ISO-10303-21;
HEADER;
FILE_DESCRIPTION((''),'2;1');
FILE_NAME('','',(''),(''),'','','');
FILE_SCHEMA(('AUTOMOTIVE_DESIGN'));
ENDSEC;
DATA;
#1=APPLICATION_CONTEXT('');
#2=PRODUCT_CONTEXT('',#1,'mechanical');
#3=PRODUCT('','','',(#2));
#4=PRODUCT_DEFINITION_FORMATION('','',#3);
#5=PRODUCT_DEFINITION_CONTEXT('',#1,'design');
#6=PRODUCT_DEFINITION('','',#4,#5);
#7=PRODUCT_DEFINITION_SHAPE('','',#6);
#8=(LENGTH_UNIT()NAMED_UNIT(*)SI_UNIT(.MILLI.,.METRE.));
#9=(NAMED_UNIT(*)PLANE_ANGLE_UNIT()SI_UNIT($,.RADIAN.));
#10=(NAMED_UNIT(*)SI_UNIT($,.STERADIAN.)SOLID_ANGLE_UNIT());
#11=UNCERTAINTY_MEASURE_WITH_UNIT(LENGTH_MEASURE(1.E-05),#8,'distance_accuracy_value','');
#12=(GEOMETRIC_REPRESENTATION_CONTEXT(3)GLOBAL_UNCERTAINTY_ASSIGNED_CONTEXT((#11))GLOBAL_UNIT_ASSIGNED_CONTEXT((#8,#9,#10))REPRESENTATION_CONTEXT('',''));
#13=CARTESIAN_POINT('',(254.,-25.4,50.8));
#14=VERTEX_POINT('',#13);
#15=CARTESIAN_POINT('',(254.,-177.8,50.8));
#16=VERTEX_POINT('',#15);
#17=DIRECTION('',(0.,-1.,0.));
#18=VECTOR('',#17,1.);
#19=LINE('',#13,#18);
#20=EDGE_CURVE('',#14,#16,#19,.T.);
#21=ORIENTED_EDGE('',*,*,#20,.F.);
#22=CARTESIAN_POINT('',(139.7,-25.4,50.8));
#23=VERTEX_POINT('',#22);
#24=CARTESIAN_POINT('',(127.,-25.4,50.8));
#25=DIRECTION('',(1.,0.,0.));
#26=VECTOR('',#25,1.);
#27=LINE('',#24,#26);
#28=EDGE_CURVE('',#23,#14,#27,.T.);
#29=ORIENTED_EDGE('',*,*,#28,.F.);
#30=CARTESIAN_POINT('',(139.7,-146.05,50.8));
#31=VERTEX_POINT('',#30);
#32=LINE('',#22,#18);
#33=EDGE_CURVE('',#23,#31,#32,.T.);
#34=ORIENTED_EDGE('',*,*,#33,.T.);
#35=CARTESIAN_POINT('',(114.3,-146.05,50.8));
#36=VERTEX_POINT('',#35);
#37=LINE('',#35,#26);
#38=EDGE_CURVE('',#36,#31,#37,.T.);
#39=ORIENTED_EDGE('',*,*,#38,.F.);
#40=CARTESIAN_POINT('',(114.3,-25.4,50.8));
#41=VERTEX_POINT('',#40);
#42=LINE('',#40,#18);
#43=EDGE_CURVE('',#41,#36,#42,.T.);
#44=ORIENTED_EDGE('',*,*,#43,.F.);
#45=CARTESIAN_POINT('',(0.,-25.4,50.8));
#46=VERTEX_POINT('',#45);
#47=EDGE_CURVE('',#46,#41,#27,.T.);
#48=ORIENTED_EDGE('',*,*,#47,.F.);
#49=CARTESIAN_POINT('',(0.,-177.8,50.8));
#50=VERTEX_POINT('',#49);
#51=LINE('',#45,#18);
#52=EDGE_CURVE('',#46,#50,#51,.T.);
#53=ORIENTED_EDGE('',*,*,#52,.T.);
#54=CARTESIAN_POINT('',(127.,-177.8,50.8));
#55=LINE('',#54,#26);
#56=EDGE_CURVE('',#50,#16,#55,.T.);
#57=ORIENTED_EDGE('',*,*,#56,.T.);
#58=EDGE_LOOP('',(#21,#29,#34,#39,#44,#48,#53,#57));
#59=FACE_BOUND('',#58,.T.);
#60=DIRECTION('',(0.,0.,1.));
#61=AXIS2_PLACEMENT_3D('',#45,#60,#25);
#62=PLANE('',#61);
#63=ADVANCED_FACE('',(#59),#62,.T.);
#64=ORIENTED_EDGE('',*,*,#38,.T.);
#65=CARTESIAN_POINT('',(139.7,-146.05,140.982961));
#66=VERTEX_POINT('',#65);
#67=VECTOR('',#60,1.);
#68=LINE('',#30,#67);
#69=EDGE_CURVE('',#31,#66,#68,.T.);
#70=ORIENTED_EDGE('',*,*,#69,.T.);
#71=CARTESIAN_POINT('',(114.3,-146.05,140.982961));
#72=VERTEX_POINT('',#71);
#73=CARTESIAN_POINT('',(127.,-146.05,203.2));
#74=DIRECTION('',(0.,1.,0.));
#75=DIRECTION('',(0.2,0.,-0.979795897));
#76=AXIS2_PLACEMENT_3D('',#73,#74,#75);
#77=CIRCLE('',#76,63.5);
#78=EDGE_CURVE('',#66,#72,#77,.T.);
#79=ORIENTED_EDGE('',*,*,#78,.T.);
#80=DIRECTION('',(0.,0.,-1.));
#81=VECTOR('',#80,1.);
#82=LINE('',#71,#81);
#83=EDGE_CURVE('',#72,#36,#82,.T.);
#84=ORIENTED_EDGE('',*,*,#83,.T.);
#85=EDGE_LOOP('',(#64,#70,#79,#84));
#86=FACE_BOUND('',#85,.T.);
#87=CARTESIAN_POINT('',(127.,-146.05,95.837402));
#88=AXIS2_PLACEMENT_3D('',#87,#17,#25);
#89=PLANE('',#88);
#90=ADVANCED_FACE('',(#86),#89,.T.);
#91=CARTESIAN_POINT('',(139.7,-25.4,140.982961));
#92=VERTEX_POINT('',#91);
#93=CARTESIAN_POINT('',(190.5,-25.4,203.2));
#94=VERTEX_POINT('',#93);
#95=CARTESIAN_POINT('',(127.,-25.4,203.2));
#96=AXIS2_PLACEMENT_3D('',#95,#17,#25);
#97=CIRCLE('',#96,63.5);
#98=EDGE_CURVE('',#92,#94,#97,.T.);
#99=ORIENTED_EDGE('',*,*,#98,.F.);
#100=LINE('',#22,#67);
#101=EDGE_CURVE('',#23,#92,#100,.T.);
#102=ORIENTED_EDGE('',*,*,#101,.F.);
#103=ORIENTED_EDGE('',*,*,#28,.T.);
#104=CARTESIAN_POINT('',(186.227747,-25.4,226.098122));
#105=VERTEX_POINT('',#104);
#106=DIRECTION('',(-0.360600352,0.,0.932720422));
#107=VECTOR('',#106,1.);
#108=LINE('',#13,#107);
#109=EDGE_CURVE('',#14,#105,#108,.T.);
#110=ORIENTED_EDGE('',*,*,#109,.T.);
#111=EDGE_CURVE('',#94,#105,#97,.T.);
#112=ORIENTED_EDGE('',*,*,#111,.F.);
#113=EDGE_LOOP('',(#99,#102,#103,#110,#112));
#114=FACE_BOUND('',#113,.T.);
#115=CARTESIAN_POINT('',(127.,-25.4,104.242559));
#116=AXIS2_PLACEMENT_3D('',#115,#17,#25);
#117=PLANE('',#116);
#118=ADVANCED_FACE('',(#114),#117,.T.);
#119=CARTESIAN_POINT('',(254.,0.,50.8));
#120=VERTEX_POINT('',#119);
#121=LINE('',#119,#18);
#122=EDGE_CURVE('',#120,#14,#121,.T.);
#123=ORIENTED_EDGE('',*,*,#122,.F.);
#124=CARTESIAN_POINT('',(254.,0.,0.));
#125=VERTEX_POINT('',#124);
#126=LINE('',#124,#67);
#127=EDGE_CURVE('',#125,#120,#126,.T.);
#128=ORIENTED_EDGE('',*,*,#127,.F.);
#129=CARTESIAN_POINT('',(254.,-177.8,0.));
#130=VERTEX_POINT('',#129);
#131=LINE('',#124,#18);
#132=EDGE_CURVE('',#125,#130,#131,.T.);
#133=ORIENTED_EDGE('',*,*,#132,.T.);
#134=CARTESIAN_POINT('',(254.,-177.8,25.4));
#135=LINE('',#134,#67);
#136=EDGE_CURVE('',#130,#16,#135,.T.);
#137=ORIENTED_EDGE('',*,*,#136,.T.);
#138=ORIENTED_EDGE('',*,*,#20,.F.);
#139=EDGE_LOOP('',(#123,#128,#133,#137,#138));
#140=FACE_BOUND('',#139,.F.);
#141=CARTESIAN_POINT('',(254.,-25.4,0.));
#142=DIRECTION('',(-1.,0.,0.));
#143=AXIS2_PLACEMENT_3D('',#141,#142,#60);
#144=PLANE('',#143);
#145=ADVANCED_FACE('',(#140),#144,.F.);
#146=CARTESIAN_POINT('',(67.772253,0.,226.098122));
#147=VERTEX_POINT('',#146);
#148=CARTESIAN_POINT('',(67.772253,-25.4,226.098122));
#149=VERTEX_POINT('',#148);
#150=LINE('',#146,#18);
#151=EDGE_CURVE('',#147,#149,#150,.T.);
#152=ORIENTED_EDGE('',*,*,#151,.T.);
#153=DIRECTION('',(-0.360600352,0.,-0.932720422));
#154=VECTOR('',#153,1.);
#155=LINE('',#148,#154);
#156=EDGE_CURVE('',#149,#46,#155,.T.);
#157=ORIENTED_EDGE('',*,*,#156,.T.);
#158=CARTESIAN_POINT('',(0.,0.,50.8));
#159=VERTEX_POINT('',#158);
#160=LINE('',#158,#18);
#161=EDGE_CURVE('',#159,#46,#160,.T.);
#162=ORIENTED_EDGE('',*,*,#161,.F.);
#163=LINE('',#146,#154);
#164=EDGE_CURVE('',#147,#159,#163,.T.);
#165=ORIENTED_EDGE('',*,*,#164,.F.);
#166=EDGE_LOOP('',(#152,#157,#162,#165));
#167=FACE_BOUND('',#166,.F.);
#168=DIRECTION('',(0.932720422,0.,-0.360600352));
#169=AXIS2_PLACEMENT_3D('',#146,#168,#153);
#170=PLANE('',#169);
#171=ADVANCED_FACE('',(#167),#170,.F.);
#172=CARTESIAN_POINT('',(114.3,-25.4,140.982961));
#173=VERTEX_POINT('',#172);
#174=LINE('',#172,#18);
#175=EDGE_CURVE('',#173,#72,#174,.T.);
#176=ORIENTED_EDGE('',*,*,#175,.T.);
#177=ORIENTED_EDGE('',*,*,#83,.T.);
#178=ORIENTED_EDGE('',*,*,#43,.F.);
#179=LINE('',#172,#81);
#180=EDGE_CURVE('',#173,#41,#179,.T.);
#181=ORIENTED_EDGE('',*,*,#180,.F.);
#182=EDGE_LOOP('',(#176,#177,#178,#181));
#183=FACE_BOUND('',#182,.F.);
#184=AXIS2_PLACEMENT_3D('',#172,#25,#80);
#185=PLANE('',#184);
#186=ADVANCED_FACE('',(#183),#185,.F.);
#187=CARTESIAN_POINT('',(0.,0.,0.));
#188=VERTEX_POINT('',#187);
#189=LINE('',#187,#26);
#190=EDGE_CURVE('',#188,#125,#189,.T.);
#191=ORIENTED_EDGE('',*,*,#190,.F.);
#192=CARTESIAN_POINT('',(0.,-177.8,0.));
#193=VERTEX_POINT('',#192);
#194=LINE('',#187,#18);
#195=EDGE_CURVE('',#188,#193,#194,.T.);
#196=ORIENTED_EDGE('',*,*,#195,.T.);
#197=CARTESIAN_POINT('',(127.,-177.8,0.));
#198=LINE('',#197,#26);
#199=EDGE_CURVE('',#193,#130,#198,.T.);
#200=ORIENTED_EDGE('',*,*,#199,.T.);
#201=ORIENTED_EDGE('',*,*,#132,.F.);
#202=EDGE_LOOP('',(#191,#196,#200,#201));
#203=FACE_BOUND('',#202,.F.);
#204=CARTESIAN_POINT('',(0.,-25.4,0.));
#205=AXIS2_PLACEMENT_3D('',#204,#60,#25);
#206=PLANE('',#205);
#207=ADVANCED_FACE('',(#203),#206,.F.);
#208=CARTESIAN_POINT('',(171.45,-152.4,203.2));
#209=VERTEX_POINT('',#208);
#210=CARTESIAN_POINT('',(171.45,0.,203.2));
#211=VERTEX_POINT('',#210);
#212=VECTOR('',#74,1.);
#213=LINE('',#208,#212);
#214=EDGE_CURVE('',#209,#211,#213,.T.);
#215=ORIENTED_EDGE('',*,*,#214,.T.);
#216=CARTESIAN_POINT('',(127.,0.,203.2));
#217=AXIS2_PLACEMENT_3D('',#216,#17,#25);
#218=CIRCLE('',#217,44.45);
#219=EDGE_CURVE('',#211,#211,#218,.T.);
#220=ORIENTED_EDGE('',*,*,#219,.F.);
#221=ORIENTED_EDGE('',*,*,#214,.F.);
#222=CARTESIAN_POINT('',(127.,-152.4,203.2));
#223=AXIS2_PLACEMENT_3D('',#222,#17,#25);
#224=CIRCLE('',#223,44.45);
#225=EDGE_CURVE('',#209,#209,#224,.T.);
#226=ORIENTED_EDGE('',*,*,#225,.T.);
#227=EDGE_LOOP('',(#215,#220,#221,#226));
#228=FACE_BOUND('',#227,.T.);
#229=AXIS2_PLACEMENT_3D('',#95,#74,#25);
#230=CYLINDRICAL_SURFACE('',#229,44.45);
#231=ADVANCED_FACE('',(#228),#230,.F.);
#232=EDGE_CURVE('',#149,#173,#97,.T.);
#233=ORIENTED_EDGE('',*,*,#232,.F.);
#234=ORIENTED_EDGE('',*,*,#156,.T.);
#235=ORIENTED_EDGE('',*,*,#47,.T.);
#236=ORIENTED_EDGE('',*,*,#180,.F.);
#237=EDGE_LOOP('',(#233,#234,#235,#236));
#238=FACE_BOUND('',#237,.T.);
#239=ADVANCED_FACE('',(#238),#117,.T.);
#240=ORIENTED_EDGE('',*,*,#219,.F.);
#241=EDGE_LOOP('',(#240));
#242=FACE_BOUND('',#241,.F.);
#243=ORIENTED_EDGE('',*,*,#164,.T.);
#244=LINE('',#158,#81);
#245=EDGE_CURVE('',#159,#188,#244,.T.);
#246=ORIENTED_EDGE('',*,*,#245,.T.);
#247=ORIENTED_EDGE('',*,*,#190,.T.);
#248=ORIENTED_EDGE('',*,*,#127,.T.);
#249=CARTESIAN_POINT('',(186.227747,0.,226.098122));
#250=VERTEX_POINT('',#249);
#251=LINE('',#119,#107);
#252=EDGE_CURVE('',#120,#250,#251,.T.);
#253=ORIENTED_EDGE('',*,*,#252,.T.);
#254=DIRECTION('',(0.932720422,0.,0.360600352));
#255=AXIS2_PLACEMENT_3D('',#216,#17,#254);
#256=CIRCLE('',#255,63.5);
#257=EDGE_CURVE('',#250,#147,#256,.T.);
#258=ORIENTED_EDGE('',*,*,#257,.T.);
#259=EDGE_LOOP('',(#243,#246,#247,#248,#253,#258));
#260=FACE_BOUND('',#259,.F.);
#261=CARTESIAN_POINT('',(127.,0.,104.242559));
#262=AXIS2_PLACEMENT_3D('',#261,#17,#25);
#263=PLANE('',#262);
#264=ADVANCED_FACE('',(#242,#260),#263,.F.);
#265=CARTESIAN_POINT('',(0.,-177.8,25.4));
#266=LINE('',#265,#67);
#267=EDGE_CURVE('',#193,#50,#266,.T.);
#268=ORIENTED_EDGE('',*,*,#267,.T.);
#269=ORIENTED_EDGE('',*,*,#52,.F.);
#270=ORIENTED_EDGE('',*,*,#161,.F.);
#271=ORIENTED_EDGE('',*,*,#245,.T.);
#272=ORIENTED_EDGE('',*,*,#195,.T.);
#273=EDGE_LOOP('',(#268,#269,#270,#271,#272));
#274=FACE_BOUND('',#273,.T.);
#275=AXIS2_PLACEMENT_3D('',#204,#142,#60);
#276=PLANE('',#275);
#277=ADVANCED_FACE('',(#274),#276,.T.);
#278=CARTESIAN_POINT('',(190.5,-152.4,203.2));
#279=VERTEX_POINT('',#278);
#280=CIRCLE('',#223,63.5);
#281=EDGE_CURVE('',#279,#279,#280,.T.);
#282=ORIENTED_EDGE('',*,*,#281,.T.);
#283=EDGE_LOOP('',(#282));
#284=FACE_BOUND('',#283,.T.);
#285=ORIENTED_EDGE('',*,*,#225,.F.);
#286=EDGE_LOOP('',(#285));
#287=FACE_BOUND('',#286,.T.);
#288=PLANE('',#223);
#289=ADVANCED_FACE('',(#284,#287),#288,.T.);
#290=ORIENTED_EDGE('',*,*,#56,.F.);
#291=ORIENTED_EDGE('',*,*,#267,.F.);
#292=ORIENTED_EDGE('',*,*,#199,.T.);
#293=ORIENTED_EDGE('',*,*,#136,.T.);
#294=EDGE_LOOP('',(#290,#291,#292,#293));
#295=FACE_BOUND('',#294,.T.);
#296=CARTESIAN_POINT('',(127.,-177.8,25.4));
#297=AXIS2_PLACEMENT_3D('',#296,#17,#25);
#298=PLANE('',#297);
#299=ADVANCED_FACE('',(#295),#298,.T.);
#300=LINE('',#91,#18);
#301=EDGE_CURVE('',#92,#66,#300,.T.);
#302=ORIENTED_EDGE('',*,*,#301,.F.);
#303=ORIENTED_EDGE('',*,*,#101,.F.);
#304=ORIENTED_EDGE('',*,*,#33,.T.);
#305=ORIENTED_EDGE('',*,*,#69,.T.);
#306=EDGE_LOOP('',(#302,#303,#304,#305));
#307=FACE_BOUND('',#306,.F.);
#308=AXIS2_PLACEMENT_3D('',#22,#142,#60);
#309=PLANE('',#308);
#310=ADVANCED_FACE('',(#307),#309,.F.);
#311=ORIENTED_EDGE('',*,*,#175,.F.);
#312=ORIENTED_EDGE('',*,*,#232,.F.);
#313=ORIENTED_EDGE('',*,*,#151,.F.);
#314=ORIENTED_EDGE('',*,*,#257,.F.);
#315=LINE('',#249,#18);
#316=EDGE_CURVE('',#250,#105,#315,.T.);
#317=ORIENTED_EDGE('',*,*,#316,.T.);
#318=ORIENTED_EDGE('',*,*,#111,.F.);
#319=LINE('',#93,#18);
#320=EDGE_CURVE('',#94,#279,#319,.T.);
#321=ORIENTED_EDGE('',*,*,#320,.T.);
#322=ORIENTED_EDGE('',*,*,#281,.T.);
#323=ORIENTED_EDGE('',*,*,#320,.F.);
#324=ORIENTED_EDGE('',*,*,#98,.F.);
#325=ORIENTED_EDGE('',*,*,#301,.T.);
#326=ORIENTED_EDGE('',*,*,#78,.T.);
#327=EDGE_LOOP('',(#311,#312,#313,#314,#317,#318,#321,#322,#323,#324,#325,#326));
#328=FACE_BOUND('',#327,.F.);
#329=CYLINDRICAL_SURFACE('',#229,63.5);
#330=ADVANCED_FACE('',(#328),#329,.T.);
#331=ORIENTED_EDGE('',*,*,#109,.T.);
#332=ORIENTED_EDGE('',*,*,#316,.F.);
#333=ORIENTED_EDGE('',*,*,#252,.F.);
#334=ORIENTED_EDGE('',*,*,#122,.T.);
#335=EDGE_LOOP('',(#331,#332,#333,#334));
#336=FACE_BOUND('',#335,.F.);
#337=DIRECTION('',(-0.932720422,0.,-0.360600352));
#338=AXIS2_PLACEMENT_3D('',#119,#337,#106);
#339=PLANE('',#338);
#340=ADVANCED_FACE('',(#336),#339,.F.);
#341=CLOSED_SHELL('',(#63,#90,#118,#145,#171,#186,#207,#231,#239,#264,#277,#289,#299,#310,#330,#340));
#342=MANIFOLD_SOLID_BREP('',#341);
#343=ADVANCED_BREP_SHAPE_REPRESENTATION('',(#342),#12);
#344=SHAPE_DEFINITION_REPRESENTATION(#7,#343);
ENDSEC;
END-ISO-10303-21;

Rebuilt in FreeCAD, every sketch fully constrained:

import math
import FreeCAD as App
import Part
import Sketcher

V = App.Vector
Q = App.Units.Quantity


def add_polygon(sketch, points):
    """Adds a closed chain of lines whose ends are joined by coincident constraints."""
    first, n = sketch.GeometryCount, len(points)
    for a, b in zip(points, points[1:] + points[:1]):
        sketch.addGeometry(Part.LineSegment(App.Vector(*a, 0), App.Vector(*b, 0)), False)
    for i in range(n):
        sketch.addConstraint(Sketcher.Constraint("Coincident", first + i, 2, first + (i + 1) % n, 1))

doc = App.newDocument("Part")
params = doc.addObject("Spreadsheet::Sheet", "Params")
for row, (alias, value) in enumerate([
    ("sketch1_diameter", "3.5 in"),
    ("sketch1_radius", "2.5 in"),
    ("sketch1_width", "10 in"),
    ("sketch1_height", "2 in"),
    ("pad1_length", "1 in"),
    ("sketch2_diameter", "5 in"),
    ("sketch2_diameter2", "3.5 in"),
    ("pad2_length", "5 in"),
    ("sketch3_width", "10 in"),
    ("sketch3_height", "2 in"),
    ("pad3_length", "6 in"),
    ("sketch4_radius", "2.5 in"),
    ("sketch4_width", "1 in"),
    ("pad4_length", "4.75 in"),
    ("sketch5_diameter", "3.5 in"),
], start=1):
    params.set(f"A{row}", alias)
    params.set(f"B{row}", "=" + value)
    params.setAlias(f"B{row}", alias)

body = doc.addObject("PartDesign::Body", "Body")

# Sketch on XZ plane
sketch1 = body.newObject("Sketcher::SketchObject", "Sketch")
sketch1.AttachmentSupport = (doc.getObject("XZ_Plane"), [""])
sketch1.MapMode = "FlatFace"
sketch1.addGeometry(Part.LineSegment(V(0, 51, 0), V(0, 0, 0)), False)
sketch1.addGeometry(Part.LineSegment(V(0, 0, 0), V(254, 0, 0)), False)
sketch1.addGeometry(Part.LineSegment(V(254, 0, 0), V(254, 51, 0)), False)
sketch1.addGeometry(Part.LineSegment(V(254, 51, 0), V(186, 226, 0)), False)
sketch1.addGeometry(Part.ArcOfCircle(Part.Circle(V(127, 203, 0), V(0, 0, 1), 64), math.radians(21), math.radians(159)), False)
sketch1.addGeometry(Part.LineSegment(V(68, 226, 0), V(0, 51, 0)), False)
sketch1.addGeometry(Part.Circle(V(127, 203, 0), V(0, 0, 1), 44), False)
sketch1.addConstraint(Sketcher.Constraint("Coincident", 0, 2, 1, 1))
sketch1.addConstraint(Sketcher.Constraint("Coincident", 1, 2, 2, 1))
sketch1.addConstraint(Sketcher.Constraint("Coincident", 2, 2, 3, 1))
sketch1.addConstraint(Sketcher.Constraint("Tangent", 3, 2, 4, 1))
sketch1.addConstraint(Sketcher.Constraint("Tangent", 4, 2, 5, 1))
sketch1.addConstraint(Sketcher.Constraint("Coincident", 5, 2, 0, 1))
sketch1.addConstraint(Sketcher.Constraint("Vertical", 0))
sketch1.addConstraint(Sketcher.Constraint("Horizontal", 1))
sketch1.addConstraint(Sketcher.Constraint("Vertical", 2))
sketch1.addConstraint(Sketcher.Constraint("Coincident", 0, 2, -1, 1))
sketch1.addConstraint(Sketcher.Constraint("Coincident", 6, 3, 4, 3))
sketch1.addConstraint(Sketcher.Constraint("Horizontal", 3, 2, 4, 2))
sketch1.addConstraint(Sketcher.Constraint("Horizontal", 2, 2, 5, 2))
sketch1.addConstraint(Sketcher.Constraint("Diameter", 6, Q("3.5 in")))
sketch1.addConstraint(Sketcher.Constraint("Radius", 4, Q("2.5 in")))
sketch1.addConstraint(Sketcher.Constraint("DistanceX", 1, 1, 1, 2, Q("10 in")))
sketch1.addConstraint(Sketcher.Constraint("DistanceY", 0, 2, 0, 1, Q("2 in")))
sketch1.addConstraint(Sketcher.Constraint("DistanceY", -1, 1, 4, 3, Q("8 in")))
sketch1.setExpression("Constraints[13]", "Params.sketch1_diameter")
sketch1.setExpression("Constraints[14]", "Params.sketch1_radius")
sketch1.setExpression("Constraints[15]", "Params.sketch1_width")
sketch1.setExpression("Constraints[16]", "Params.sketch1_height")
pad1 = body.newObject("PartDesign::Pad", "Pad")
pad1.Profile = sketch1
pad1.setExpression("Length", "Params.pad1_length")

# Sketch on XZ plane
sketch2 = body.newObject("Sketcher::SketchObject", "Sketch001")
sketch2.AttachmentSupport = (doc.getObject("XZ_Plane"), [""])
sketch2.MapMode = "FlatFace"
sketch2.AttachmentOffset = App.Placement(V(0, 0, 1 * 25.4), App.Rotation())
sketch2.addGeometry(Part.Circle(V(127, 203, 0), V(0, 0, 1), 64), False)
sketch2.addGeometry(Part.Circle(V(127, 203, 0), V(0, 0, 1), 44), False)
sketch2.addConstraint(Sketcher.Constraint("Coincident", 1, 3, 0, 3))
sketch2.addConstraint(Sketcher.Constraint("Diameter", 0, Q("5 in")))
sketch2.addConstraint(Sketcher.Constraint("Diameter", 1, Q("3.5 in")))
sketch2.addConstraint(Sketcher.Constraint("DistanceX", -1, 1, 0, 3, Q("5 in")))
sketch2.addConstraint(Sketcher.Constraint("DistanceY", -1, 1, 0, 3, Q("8 in")))
sketch2.setExpression("Constraints[1]", "Params.sketch2_diameter")
sketch2.setExpression("Constraints[2]", "Params.sketch2_diameter2")
pad2 = body.newObject("PartDesign::Pad", "Pad001")
pad2.Profile = sketch2
pad2.setExpression("Length", "Params.pad2_length")

# Sketch on XZ plane
sketch3 = body.newObject("Sketcher::SketchObject", "Sketch002")
sketch3.AttachmentSupport = (doc.getObject("XZ_Plane"), [""])
sketch3.MapMode = "FlatFace"
sketch3.AttachmentOffset = App.Placement(V(0, 0, 1 * 25.4), App.Rotation())
add_polygon(sketch3, [(0, 51), (0, 0), (254, 0), (254, 51)])  # lines 0-3
sketch3.addConstraint(Sketcher.Constraint("Vertical", 0))
sketch3.addConstraint(Sketcher.Constraint("Horizontal", 1))
sketch3.addConstraint(Sketcher.Constraint("Vertical", 2))
sketch3.addConstraint(Sketcher.Constraint("Horizontal", 3))
sketch3.addConstraint(Sketcher.Constraint("Coincident", 0, 2, -1, 1))
sketch3.addConstraint(Sketcher.Constraint("DistanceX", 1, 1, 1, 2, Q("10 in")))
sketch3.addConstraint(Sketcher.Constraint("DistanceY", 0, 2, 0, 1, Q("2 in")))
sketch3.setExpression("Constraints[9]", "Params.sketch3_width")
sketch3.setExpression("Constraints[10]", "Params.sketch3_height")
pad3 = body.newObject("PartDesign::Pad", "Pad002")
pad3.Profile = sketch3
pad3.setExpression("Length", "Params.pad3_length")

# Sketch on XZ plane
sketch4 = body.newObject("Sketcher::SketchObject", "Sketch003")
sketch4.AttachmentSupport = (doc.getObject("XZ_Plane"), [""])
sketch4.MapMode = "FlatFace"
sketch4.AttachmentOffset = App.Placement(V(0, 0, 1 * 25.4), App.Rotation())
sketch4.addGeometry(Part.ArcOfCircle(Part.Circle(V(127, 203, 0), V(0, 0, 1), 64), math.radians(-102), math.radians(-78)), False)
sketch4.addGeometry(Part.LineSegment(V(114, 141, 0), V(114, 51, 0)), False)
sketch4.addGeometry(Part.LineSegment(V(114, 51, 0), V(140, 51, 0)), False)
sketch4.addGeometry(Part.LineSegment(V(140, 51, 0), V(140, 141, 0)), False)
sketch4.addConstraint(Sketcher.Constraint("Coincident", 0, 1, 1, 1))
sketch4.addConstraint(Sketcher.Constraint("Coincident", 1, 2, 2, 1))
sketch4.addConstraint(Sketcher.Constraint("Coincident", 2, 2, 3, 1))
sketch4.addConstraint(Sketcher.Constraint("Coincident", 3, 2, 0, 2))
sketch4.addConstraint(Sketcher.Constraint("Vertical", 1))
sketch4.addConstraint(Sketcher.Constraint("Horizontal", 2))
sketch4.addConstraint(Sketcher.Constraint("Vertical", 3))
sketch4.addConstraint(Sketcher.Constraint("Horizontal", 0, 1, 3, 2))
sketch4.addConstraint(Sketcher.Constraint("Radius", 0, Q("2.5 in")))
sketch4.addConstraint(Sketcher.Constraint("DistanceX", 2, 1, 2, 2, Q("1 in")))
sketch4.addConstraint(Sketcher.Constraint("DistanceX", -1, 1, 0, 3, Q("5 in")))
sketch4.addConstraint(Sketcher.Constraint("DistanceY", -1, 1, 0, 3, Q("8 in")))
sketch4.addConstraint(Sketcher.Constraint("DistanceY", -1, 1, 1, 2, Q("2 in")))
sketch4.setExpression("Constraints[8]", "Params.sketch4_radius")
sketch4.setExpression("Constraints[9]", "Params.sketch4_width")
pad4 = body.newObject("PartDesign::Pad", "Pad003")
pad4.Profile = sketch4
pad4.setExpression("Length", "Params.pad4_length")

# Sketch on XZ plane
sketch5 = body.newObject("Sketcher::SketchObject", "Sketch004")
sketch5.AttachmentSupport = (doc.getObject("XZ_Plane"), [""])
sketch5.MapMode = "FlatFace"
sketch5.AttachmentOffset = App.Placement(V(0, 0, 6 * 25.4), App.Rotation())
sketch5.addGeometry(Part.Circle(V(127, 203, 0), V(0, 0, 1), 44), False)
sketch5.addConstraint(Sketcher.Constraint("Diameter", 0, Q("3.5 in")))
sketch5.addConstraint(Sketcher.Constraint("DistanceX", -1, 1, 0, 3, Q("5 in")))
sketch5.addConstraint(Sketcher.Constraint("DistanceY", -1, 1, 0, 3, Q("8 in")))
sketch5.setExpression("Constraints[0]", "Params.sketch5_diameter")
pocket1 = body.newObject("PartDesign::Pocket", "Pocket")
pocket1.Profile = sketch5
pocket1.Type = "ThroughAll"

doc.recompute()
